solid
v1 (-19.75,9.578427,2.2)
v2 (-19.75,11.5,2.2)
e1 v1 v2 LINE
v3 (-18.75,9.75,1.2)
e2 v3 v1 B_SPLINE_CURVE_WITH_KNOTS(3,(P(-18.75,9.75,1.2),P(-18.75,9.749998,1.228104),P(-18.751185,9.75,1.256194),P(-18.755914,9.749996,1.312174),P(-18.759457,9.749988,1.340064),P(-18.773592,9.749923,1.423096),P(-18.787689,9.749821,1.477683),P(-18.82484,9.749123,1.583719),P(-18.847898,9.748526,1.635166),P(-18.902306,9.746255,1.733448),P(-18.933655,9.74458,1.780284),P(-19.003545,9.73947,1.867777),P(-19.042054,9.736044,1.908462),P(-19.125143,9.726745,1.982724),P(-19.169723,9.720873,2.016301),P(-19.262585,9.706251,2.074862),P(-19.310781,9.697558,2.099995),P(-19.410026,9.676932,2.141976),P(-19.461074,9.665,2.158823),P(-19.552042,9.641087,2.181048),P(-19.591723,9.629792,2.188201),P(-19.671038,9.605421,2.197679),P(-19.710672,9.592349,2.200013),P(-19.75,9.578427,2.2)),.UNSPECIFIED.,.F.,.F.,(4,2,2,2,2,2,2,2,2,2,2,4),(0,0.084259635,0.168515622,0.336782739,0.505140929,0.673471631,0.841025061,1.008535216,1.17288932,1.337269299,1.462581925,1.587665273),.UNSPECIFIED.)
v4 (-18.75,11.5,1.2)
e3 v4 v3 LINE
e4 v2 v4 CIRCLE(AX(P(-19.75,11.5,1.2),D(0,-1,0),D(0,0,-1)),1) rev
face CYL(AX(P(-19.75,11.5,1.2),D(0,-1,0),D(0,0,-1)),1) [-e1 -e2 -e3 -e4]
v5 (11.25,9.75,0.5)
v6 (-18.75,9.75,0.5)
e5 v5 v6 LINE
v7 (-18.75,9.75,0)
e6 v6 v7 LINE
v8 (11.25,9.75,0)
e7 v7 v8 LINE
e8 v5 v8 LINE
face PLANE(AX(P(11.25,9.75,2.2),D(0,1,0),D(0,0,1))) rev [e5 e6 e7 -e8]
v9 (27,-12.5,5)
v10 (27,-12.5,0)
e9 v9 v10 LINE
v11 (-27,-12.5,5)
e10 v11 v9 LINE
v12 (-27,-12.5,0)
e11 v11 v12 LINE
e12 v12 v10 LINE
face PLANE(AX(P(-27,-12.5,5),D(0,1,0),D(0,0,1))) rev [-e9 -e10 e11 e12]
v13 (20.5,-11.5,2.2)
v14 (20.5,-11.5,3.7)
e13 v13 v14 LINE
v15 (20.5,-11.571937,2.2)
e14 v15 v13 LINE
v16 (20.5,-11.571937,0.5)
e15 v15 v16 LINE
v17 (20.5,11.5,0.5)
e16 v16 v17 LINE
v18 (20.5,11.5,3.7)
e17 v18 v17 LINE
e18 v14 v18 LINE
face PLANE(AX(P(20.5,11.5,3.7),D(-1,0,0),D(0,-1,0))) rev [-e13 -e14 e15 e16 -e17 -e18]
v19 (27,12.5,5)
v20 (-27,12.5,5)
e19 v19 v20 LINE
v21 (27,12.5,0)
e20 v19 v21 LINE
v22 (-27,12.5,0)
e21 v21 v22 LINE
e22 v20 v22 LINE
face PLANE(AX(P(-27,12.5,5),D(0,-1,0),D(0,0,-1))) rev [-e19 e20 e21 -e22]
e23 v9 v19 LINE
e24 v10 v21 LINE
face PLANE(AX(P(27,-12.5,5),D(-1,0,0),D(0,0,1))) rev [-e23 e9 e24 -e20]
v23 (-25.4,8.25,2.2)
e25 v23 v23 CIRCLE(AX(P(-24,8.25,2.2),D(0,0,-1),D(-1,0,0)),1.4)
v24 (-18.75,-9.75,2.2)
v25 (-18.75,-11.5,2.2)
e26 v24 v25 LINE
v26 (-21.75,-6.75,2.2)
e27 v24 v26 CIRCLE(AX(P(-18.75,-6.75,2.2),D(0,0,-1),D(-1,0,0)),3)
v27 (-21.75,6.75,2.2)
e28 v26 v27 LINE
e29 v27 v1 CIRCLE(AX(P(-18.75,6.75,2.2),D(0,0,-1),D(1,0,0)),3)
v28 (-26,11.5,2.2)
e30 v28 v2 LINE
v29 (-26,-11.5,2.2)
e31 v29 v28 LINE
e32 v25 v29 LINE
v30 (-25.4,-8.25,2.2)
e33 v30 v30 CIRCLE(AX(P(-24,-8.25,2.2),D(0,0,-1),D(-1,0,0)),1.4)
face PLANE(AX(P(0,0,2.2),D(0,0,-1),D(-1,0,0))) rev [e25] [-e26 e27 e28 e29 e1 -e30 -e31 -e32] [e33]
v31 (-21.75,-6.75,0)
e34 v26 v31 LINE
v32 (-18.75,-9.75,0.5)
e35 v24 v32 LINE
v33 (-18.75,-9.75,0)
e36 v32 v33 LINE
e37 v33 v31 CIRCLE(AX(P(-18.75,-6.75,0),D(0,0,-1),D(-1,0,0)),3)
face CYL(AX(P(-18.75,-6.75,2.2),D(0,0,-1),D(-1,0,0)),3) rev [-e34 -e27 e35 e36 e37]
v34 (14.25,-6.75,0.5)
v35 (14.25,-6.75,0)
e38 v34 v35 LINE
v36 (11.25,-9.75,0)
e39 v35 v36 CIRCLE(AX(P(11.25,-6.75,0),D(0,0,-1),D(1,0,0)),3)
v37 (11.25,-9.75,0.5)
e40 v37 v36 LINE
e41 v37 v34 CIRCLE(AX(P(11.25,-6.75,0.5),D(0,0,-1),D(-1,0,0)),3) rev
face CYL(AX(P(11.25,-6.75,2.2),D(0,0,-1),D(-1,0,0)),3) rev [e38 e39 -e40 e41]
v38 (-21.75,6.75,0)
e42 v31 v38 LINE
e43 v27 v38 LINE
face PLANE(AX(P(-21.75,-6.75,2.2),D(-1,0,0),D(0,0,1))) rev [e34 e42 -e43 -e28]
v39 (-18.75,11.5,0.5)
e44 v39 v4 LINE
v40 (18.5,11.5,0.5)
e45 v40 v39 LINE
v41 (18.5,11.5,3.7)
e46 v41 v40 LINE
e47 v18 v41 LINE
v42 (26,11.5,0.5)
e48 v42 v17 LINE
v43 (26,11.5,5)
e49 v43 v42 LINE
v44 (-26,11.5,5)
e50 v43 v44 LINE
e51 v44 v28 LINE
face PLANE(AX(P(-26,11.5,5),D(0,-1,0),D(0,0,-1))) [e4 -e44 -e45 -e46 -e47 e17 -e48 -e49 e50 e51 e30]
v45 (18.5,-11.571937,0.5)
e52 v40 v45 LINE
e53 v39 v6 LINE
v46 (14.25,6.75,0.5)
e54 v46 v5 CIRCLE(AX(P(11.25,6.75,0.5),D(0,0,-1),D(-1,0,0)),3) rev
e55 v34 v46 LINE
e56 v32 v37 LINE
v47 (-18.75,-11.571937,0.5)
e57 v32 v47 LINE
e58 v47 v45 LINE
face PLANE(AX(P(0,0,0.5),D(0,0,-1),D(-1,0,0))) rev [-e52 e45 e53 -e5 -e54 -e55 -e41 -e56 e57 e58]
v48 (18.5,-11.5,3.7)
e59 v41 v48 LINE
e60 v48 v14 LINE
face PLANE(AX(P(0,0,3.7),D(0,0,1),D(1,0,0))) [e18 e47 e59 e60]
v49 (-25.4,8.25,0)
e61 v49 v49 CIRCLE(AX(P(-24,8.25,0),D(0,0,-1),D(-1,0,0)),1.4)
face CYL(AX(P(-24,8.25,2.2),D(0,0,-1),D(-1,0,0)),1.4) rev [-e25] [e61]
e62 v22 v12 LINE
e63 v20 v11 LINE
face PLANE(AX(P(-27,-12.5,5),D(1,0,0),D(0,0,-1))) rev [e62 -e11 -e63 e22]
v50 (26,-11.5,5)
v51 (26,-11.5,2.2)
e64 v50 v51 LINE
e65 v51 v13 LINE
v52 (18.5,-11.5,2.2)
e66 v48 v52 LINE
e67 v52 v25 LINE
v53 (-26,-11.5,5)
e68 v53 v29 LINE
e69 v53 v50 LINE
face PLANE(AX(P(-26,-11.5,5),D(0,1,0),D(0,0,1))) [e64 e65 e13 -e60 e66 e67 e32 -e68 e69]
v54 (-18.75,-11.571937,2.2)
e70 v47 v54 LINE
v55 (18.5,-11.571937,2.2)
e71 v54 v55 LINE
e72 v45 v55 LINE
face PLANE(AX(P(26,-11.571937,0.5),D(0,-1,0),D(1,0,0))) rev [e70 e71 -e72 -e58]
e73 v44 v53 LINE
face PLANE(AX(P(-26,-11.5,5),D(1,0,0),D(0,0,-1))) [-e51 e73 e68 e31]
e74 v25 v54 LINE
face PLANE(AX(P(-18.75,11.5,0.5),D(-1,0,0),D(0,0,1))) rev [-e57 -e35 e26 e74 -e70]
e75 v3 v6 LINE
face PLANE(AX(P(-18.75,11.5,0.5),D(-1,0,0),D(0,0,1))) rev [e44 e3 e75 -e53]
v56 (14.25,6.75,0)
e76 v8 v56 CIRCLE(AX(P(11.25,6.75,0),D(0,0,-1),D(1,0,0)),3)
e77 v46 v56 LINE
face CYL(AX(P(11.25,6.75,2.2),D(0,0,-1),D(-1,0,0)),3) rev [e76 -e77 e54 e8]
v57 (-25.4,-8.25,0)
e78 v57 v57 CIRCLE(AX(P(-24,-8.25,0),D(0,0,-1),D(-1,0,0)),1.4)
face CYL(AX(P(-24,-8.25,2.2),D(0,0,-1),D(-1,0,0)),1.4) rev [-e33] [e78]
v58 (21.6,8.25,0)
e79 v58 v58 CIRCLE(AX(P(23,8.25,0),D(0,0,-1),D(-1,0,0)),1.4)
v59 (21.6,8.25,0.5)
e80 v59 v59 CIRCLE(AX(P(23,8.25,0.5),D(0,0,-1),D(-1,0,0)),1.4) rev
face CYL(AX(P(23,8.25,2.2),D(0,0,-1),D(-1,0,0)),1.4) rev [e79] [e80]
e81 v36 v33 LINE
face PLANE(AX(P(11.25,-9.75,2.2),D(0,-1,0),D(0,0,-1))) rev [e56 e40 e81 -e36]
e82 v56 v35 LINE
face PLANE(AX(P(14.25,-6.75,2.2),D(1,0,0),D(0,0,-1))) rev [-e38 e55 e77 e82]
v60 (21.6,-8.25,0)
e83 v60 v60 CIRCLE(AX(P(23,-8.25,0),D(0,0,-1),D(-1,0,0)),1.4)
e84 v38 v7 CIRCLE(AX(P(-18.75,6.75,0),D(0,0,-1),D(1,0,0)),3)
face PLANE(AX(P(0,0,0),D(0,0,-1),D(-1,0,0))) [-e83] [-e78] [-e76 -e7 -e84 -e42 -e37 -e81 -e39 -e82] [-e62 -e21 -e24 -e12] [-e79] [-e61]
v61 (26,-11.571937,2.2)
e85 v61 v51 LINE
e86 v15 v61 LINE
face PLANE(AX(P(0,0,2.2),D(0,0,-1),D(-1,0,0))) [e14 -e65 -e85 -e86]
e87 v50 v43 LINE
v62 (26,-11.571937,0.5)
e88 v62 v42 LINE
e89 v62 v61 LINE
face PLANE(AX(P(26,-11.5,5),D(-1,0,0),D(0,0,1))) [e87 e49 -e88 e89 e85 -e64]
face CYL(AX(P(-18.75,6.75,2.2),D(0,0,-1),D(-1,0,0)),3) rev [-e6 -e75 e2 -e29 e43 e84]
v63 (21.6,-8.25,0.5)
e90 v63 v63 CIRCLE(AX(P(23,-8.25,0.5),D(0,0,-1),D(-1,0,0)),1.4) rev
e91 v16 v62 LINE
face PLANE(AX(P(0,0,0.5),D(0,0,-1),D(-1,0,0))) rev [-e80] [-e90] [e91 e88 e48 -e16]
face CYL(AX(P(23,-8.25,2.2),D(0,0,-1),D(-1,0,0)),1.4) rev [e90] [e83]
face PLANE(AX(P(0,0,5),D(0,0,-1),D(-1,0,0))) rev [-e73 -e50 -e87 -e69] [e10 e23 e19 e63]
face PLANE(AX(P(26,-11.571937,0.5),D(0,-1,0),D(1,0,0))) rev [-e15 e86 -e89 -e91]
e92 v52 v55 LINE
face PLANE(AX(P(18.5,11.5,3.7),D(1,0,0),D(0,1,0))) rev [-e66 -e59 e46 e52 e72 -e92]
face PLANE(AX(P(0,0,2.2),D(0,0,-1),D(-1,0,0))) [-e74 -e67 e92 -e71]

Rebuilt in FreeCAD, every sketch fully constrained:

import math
import FreeCAD as App
import Part
import Sketcher
from FreeCAD import Vector
Q = App.Units.Quantity


def edges_at(feature, points):
    """Names of the edges that pass closest to the given points."""
    edges = feature.Shape.Edges
    near = lambda p: min(range(len(edges)), key=lambda i: edges[i].distToShape(Part.Vertex(*p))[0])
    return sorted({f"Edge{near(p) + 1}" for p in points})

doc = App.newDocument("Part")
body = doc.addObject("PartDesign::Body", "Body")

# Sketch on XY plane
sketch1 = body.newObject("Sketcher::SketchObject", "Sketch")
sketch1.AttachmentSupport = (doc.getObject("XY_Plane"), [""])
sketch1.MapMode = "FlatFace"
sketch1.addGeometry([
    Part.LineSegment(Vector(-27, 12.5, 0), Vector(-27, -12.5, 0)),  # 0
    Part.LineSegment(Vector(-27, -12.5, 0), Vector(27, -12.5, 0)),  # 1
    Part.LineSegment(Vector(27, -12.5, 0), Vector(27, 12.5, 0)),  # 2
    Part.LineSegment(Vector(27, 12.5, 0), Vector(-27, 12.5, 0)),  # 3
    Part.LineSegment(Vector(26, -11.5, 0), Vector(-26, -11.5, 0)),  # 4
    Part.LineSegment(Vector(-26, -11.5, 0), Vector(-26, 11.5, 0)),  # 5
    Part.LineSegment(Vector(-26, 11.5, 0), Vector(26, 11.5, 0)),  # 6
    Part.LineSegment(Vector(26, 11.5, 0), Vector(26, -11.5, 0)),  # 7
], False)
sketch1.addConstraint([
    Sketcher.Constraint("Coincident", 0, 2, 1, 1),
    Sketcher.Constraint("Coincident", 1, 2, 2, 1),
    Sketcher.Constraint("Coincident", 2, 2, 3, 1),
    Sketcher.Constraint("Coincident", 3, 2, 0, 1),
    Sketcher.Constraint("Coincident", 4, 2, 5, 1),
    Sketcher.Constraint("Coincident", 5, 2, 6, 1),
    Sketcher.Constraint("Coincident", 6, 2, 7, 1),
    Sketcher.Constraint("Coincident", 7, 2, 4, 1),
    Sketcher.Constraint("Vertical", 0),
    Sketcher.Constraint("Horizontal", 1),
    Sketcher.Constraint("Vertical", 2),
    Sketcher.Constraint("Horizontal", 3),
    Sketcher.Constraint("Horizontal", 4),
    Sketcher.Constraint("Vertical", 5),
    Sketcher.Constraint("Horizontal", 6),
    Sketcher.Constraint("Vertical", 7),
    Sketcher.Constraint("Symmetric", 0, 2, 2, 2, -1, 1),
    Sketcher.Constraint("Symmetric", 4, 2, 6, 2, -1, 1),
    Sketcher.Constraint("DistanceX", 1, 1, 1, 2, Q("54 mm")),
    Sketcher.Constraint("DistanceX", 4, 2, 4, 1, Q("52 mm")),
    Sketcher.Constraint("DistanceY", 0, 2, 0, 1, Q("25 mm")),
    Sketcher.Constraint("DistanceY", 5, 1, 5, 2, Q("23 mm")),
])
pad1 = body.newObject("PartDesign::Pad", "Pad")
pad1.Profile = sketch1
pad1.Length = 5

# Sketch on XY plane
sketch2 = body.newObject("Sketcher::SketchObject", "Sketch001")
sketch2.AttachmentSupport = (doc.getObject("XY_Plane"), [""])
sketch2.MapMode = "FlatFace"
sketch2.addGeometry([
    Part.LineSegment(Vector(27, 12.5, 0), Vector(27, -12.5, 0)),  # 0
    Part.LineSegment(Vector(27, -12.5, 0), Vector(-27, -12.5, 0)),  # 1
    Part.LineSegment(Vector(-27, -12.5, 0), Vector(-27, 12.5, 0)),  # 2
    Part.LineSegment(Vector(-27, 12.5, 0), Vector(27, 12.5, 0)),  # 3
    Part.Circle(Vector(23, -8.25, 0), Vector(0, 0, 1), 1.4),  # 4
    Part.Circle(Vector(-24, -8.25, 0), Vector(0, 0, 1), 1.4),  # 5
    Part.Circle(Vector(23, 8.25, 0), Vector(0, 0, 1), 1.4),  # 6
    Part.LineSegment(Vector(-18.75, -9.75, 0), Vector(11.25, -9.75, 0)),  # 7
    Part.ArcOfCircle(Part.Circle(Vector(11.25, -6.75, 0), Vector(0, 0, 1), 3), math.radians(-90), math.radians(0)),  # 8
    Part.LineSegment(Vector(14.25, -6.75, 0), Vector(14.25, 6.75, 0)),  # 9
    Part.ArcOfCircle(Part.Circle(Vector(11.25, 6.75, 0), Vector(0, 0, 1), 3), math.radians(0), math.radians(90)),  # 10
    Part.LineSegment(Vector(11.25, 9.75, 0), Vector(-18.75, 9.75, 0)),  # 11
    Part.ArcOfCircle(Part.Circle(Vector(-18.75, 6.75, 0), Vector(0, 0, 1), 3), math.radians(90), math.radians(180)),  # 12
    Part.LineSegment(Vector(-21.75, 6.75, 0), Vector(-21.75, -6.75, 0)),  # 13
    Part.ArcOfCircle(Part.Circle(Vector(-18.75, -6.75, 0), Vector(0, 0, 1), 3), math.radians(180), math.radians(270)),  # 14
    Part.Circle(Vector(-24, 8.25, 0), Vector(0, 0, 1), 1.4),  # 15
], False)
sketch2.addConstraint([
    Sketcher.Constraint("Coincident", 0, 2, 1, 1),
    Sketcher.Constraint("Coincident", 1, 2, 2, 1),
    Sketcher.Constraint("Coincident", 2, 2, 3, 1),
    Sketcher.Constraint("Coincident", 3, 2, 0, 1),
    Sketcher.Constraint("Tangent", 7, 2, 8, 1),
    Sketcher.Constraint("Tangent", 8, 2, 9, 1),
    Sketcher.Constraint("Tangent", 9, 2, 10, 1),
    Sketcher.Constraint("Tangent", 10, 2, 11, 1),
    Sketcher.Constraint("Tangent", 11, 2, 12, 1),
    Sketcher.Constraint("Tangent", 12, 2, 13, 1),
    Sketcher.Constraint("Tangent", 13, 2, 14, 1),
    Sketcher.Constraint("Tangent", 14, 2, 7, 1),
    Sketcher.Constraint("Vertical", 0),
    Sketcher.Constraint("Horizontal", 1),
    Sketcher.Constraint("Vertical", 2),
    Sketcher.Constraint("Horizontal", 3),
    Sketcher.Constraint("Horizontal", 7),
    Sketcher.Constraint("Vertical", 9),
    Sketcher.Constraint("Horizontal", 11),
    Sketcher.Constraint("Vertical", 13),
    Sketcher.Constraint("Equal", 4, 5),
    Sketcher.Constraint("Equal", 5, 6),
    Sketcher.Constraint("Equal", 8, 10),
    Sketcher.Constraint("Equal", 10, 12),
    Sketcher.Constraint("Equal", 12, 14),
    Sketcher.Constraint("Equal", 6, 15),
    Sketcher.Constraint("Symmetric", 0, 2, 2, 2, -1, 1),
    Sketcher.Constraint("Symmetric", 4, 3, 6, 3, -1),
    Sketcher.Constraint("Symmetric", 5, 3, 15, 3, -1),
    Sketcher.Constraint("Horizontal", 4, 3, 5, 3),
    Sketcher.Constraint("Radius", 8, Q("3 mm")),
    Sketcher.Constraint("Diameter", 4, Q("2.8 mm")),
    Sketcher.Constraint("DistanceX", 1, 2, 1, 1, Q("54 mm")),
    Sketcher.Constraint("DistanceX", 7, 1, 7, 2, Q("30 mm")),
    Sketcher.Constraint("DistanceY", 0, 2, 0, 1, Q("25 mm")),
    Sketcher.Constraint("DistanceY", 9, 1, 9, 2, Q("13.5 mm")),
    Sketcher.Constraint("DistanceX", -1, 1, 4, 3, Q("23 mm")),
    Sketcher.Constraint("DistanceX", 5, 3, -1, 1, Q("24 mm")),
    Sketcher.Constraint("DistanceY", 8, 3, 6, 3, Q("15 mm")),
    Sketcher.Constraint("DistanceY", 4, 3, 10, 3, Q("15 mm")),
    Sketcher.Constraint("DistanceX", -1, 1, 8, 3, Q("11.25 mm")),
])
pad2 = body.newObject("PartDesign::Pad", "Pad001")
pad2.Profile = sketch2
pad2.Length = 2.2

# Sketch on XY plane
sketch3 = body.newObject("Sketcher::SketchObject", "Sketch002")
sketch3.AttachmentSupport = (doc.getObject("XY_Plane"), [""])
sketch3.MapMode = "FlatFace"
sketch3.AttachmentOffset = App.Placement(Vector(0, 0, 2.2), App.Rotation())
sketch3.addGeometry([
    Part.LineSegment(Vector(-18.75, 11.5, 0), Vector(-18.75, -11.571937, 0)),
    Part.LineSegment(Vector(-18.75, -11.571937, 0), Vector(26, -11.571937, 0)),
    Part.LineSegment(Vector(26, -11.571937, 0), Vector(26, 11.5, 0)),
    Part.LineSegment(Vector(26, 11.5, 0), Vector(-18.75, 11.5, 0)),
], False)
sketch3.addConstraint([
    Sketcher.Constraint("Coincident", 0, 2, 1, 1),
    Sketcher.Constraint("Coincident", 1, 2, 2, 1),
    Sketcher.Constraint("Coincident", 2, 2, 3, 1),
    Sketcher.Constraint("Coincident", 3, 2, 0, 1),
    Sketcher.Constraint("Vertical", 0),
    Sketcher.Constraint("Horizontal", 1),
    Sketcher.Constraint("Vertical", 2),
    Sketcher.Constraint("Horizontal", 3),
    Sketcher.Constraint("DistanceX", -1, 1, 1, 2, Q("26 mm")),
    Sketcher.Constraint("DistanceX", 1, 1, 1, 2, Q("44.75 mm")),
    Sketcher.Constraint("DistanceY", -1, 1, 2, 2, Q("11.5 mm")),
    Sketcher.Constraint("DistanceY", 0, 2, 0, 1, Q("23.071937 mm")),
])
pocket1 = body.newObject("PartDesign::Pocket", "Pocket")
pocket1.Profile = sketch3
pocket1.Length = 1.7
doc.recompute()

fillet = body.newObject("PartDesign::Fillet", "Fillet")
fillet.Base = (pocket1, edges_at(pocket1, [(-18.75, 10.625, 2.2)]))
fillet.Radius = 1

# Sketch on XY plane
sketch4 = body.newObject("Sketcher::SketchObject", "Sketch003")
sketch4.AttachmentSupport = (doc.getObject("XY_Plane"), [""])
sketch4.MapMode = "FlatFace"
sketch4.AttachmentOffset = App.Placement(Vector(0, 0, 0.5), App.Rotation())
sketch4.addGeometry([
    Part.LineSegment(Vector(18.5, 11.5, 0), Vector(18.5, -11.571937, 0)),
    Part.LineSegment(Vector(18.5, -11.571937, 0), Vector(20.5, -11.571937, 0)),
    Part.LineSegment(Vector(20.5, -11.571937, 0), Vector(20.5, 11.5, 0)),
    Part.LineSegment(Vector(20.5, 11.5, 0), Vector(18.5, 11.5, 0)),
], False)
sketch4.addConstraint([
    Sketcher.Constraint("Coincident", 0, 2, 1, 1),
    Sketcher.Constraint("Coincident", 1, 2, 2, 1),
    Sketcher.Constraint("Coincident", 2, 2, 3, 1),
    Sketcher.Constraint("Coincident", 3, 2, 0, 1),
    Sketcher.Constraint("Vertical", 0),
    Sketcher.Constraint("Horizontal", 1),
    Sketcher.Constraint("Vertical", 2),
    Sketcher.Constraint("Horizontal", 3),
    Sketcher.Constraint("DistanceX", 1, 1, 1, 2, Q("2 mm")),
    Sketcher.Constraint("DistanceX", -1, 1, 0, 2, Q("18.5 mm")),
    Sketcher.Constraint("DistanceY", -1, 1, 2, 2, Q("11.5 mm")),
    Sketcher.Constraint("DistanceY", 0, 2, 0, 1, Q("23.071937 mm")),
])
pad3 = body.newObject("PartDesign::Pad", "Pad002")
pad3.Profile = sketch4
pad3.Length = 3.2

doc.recompute()
